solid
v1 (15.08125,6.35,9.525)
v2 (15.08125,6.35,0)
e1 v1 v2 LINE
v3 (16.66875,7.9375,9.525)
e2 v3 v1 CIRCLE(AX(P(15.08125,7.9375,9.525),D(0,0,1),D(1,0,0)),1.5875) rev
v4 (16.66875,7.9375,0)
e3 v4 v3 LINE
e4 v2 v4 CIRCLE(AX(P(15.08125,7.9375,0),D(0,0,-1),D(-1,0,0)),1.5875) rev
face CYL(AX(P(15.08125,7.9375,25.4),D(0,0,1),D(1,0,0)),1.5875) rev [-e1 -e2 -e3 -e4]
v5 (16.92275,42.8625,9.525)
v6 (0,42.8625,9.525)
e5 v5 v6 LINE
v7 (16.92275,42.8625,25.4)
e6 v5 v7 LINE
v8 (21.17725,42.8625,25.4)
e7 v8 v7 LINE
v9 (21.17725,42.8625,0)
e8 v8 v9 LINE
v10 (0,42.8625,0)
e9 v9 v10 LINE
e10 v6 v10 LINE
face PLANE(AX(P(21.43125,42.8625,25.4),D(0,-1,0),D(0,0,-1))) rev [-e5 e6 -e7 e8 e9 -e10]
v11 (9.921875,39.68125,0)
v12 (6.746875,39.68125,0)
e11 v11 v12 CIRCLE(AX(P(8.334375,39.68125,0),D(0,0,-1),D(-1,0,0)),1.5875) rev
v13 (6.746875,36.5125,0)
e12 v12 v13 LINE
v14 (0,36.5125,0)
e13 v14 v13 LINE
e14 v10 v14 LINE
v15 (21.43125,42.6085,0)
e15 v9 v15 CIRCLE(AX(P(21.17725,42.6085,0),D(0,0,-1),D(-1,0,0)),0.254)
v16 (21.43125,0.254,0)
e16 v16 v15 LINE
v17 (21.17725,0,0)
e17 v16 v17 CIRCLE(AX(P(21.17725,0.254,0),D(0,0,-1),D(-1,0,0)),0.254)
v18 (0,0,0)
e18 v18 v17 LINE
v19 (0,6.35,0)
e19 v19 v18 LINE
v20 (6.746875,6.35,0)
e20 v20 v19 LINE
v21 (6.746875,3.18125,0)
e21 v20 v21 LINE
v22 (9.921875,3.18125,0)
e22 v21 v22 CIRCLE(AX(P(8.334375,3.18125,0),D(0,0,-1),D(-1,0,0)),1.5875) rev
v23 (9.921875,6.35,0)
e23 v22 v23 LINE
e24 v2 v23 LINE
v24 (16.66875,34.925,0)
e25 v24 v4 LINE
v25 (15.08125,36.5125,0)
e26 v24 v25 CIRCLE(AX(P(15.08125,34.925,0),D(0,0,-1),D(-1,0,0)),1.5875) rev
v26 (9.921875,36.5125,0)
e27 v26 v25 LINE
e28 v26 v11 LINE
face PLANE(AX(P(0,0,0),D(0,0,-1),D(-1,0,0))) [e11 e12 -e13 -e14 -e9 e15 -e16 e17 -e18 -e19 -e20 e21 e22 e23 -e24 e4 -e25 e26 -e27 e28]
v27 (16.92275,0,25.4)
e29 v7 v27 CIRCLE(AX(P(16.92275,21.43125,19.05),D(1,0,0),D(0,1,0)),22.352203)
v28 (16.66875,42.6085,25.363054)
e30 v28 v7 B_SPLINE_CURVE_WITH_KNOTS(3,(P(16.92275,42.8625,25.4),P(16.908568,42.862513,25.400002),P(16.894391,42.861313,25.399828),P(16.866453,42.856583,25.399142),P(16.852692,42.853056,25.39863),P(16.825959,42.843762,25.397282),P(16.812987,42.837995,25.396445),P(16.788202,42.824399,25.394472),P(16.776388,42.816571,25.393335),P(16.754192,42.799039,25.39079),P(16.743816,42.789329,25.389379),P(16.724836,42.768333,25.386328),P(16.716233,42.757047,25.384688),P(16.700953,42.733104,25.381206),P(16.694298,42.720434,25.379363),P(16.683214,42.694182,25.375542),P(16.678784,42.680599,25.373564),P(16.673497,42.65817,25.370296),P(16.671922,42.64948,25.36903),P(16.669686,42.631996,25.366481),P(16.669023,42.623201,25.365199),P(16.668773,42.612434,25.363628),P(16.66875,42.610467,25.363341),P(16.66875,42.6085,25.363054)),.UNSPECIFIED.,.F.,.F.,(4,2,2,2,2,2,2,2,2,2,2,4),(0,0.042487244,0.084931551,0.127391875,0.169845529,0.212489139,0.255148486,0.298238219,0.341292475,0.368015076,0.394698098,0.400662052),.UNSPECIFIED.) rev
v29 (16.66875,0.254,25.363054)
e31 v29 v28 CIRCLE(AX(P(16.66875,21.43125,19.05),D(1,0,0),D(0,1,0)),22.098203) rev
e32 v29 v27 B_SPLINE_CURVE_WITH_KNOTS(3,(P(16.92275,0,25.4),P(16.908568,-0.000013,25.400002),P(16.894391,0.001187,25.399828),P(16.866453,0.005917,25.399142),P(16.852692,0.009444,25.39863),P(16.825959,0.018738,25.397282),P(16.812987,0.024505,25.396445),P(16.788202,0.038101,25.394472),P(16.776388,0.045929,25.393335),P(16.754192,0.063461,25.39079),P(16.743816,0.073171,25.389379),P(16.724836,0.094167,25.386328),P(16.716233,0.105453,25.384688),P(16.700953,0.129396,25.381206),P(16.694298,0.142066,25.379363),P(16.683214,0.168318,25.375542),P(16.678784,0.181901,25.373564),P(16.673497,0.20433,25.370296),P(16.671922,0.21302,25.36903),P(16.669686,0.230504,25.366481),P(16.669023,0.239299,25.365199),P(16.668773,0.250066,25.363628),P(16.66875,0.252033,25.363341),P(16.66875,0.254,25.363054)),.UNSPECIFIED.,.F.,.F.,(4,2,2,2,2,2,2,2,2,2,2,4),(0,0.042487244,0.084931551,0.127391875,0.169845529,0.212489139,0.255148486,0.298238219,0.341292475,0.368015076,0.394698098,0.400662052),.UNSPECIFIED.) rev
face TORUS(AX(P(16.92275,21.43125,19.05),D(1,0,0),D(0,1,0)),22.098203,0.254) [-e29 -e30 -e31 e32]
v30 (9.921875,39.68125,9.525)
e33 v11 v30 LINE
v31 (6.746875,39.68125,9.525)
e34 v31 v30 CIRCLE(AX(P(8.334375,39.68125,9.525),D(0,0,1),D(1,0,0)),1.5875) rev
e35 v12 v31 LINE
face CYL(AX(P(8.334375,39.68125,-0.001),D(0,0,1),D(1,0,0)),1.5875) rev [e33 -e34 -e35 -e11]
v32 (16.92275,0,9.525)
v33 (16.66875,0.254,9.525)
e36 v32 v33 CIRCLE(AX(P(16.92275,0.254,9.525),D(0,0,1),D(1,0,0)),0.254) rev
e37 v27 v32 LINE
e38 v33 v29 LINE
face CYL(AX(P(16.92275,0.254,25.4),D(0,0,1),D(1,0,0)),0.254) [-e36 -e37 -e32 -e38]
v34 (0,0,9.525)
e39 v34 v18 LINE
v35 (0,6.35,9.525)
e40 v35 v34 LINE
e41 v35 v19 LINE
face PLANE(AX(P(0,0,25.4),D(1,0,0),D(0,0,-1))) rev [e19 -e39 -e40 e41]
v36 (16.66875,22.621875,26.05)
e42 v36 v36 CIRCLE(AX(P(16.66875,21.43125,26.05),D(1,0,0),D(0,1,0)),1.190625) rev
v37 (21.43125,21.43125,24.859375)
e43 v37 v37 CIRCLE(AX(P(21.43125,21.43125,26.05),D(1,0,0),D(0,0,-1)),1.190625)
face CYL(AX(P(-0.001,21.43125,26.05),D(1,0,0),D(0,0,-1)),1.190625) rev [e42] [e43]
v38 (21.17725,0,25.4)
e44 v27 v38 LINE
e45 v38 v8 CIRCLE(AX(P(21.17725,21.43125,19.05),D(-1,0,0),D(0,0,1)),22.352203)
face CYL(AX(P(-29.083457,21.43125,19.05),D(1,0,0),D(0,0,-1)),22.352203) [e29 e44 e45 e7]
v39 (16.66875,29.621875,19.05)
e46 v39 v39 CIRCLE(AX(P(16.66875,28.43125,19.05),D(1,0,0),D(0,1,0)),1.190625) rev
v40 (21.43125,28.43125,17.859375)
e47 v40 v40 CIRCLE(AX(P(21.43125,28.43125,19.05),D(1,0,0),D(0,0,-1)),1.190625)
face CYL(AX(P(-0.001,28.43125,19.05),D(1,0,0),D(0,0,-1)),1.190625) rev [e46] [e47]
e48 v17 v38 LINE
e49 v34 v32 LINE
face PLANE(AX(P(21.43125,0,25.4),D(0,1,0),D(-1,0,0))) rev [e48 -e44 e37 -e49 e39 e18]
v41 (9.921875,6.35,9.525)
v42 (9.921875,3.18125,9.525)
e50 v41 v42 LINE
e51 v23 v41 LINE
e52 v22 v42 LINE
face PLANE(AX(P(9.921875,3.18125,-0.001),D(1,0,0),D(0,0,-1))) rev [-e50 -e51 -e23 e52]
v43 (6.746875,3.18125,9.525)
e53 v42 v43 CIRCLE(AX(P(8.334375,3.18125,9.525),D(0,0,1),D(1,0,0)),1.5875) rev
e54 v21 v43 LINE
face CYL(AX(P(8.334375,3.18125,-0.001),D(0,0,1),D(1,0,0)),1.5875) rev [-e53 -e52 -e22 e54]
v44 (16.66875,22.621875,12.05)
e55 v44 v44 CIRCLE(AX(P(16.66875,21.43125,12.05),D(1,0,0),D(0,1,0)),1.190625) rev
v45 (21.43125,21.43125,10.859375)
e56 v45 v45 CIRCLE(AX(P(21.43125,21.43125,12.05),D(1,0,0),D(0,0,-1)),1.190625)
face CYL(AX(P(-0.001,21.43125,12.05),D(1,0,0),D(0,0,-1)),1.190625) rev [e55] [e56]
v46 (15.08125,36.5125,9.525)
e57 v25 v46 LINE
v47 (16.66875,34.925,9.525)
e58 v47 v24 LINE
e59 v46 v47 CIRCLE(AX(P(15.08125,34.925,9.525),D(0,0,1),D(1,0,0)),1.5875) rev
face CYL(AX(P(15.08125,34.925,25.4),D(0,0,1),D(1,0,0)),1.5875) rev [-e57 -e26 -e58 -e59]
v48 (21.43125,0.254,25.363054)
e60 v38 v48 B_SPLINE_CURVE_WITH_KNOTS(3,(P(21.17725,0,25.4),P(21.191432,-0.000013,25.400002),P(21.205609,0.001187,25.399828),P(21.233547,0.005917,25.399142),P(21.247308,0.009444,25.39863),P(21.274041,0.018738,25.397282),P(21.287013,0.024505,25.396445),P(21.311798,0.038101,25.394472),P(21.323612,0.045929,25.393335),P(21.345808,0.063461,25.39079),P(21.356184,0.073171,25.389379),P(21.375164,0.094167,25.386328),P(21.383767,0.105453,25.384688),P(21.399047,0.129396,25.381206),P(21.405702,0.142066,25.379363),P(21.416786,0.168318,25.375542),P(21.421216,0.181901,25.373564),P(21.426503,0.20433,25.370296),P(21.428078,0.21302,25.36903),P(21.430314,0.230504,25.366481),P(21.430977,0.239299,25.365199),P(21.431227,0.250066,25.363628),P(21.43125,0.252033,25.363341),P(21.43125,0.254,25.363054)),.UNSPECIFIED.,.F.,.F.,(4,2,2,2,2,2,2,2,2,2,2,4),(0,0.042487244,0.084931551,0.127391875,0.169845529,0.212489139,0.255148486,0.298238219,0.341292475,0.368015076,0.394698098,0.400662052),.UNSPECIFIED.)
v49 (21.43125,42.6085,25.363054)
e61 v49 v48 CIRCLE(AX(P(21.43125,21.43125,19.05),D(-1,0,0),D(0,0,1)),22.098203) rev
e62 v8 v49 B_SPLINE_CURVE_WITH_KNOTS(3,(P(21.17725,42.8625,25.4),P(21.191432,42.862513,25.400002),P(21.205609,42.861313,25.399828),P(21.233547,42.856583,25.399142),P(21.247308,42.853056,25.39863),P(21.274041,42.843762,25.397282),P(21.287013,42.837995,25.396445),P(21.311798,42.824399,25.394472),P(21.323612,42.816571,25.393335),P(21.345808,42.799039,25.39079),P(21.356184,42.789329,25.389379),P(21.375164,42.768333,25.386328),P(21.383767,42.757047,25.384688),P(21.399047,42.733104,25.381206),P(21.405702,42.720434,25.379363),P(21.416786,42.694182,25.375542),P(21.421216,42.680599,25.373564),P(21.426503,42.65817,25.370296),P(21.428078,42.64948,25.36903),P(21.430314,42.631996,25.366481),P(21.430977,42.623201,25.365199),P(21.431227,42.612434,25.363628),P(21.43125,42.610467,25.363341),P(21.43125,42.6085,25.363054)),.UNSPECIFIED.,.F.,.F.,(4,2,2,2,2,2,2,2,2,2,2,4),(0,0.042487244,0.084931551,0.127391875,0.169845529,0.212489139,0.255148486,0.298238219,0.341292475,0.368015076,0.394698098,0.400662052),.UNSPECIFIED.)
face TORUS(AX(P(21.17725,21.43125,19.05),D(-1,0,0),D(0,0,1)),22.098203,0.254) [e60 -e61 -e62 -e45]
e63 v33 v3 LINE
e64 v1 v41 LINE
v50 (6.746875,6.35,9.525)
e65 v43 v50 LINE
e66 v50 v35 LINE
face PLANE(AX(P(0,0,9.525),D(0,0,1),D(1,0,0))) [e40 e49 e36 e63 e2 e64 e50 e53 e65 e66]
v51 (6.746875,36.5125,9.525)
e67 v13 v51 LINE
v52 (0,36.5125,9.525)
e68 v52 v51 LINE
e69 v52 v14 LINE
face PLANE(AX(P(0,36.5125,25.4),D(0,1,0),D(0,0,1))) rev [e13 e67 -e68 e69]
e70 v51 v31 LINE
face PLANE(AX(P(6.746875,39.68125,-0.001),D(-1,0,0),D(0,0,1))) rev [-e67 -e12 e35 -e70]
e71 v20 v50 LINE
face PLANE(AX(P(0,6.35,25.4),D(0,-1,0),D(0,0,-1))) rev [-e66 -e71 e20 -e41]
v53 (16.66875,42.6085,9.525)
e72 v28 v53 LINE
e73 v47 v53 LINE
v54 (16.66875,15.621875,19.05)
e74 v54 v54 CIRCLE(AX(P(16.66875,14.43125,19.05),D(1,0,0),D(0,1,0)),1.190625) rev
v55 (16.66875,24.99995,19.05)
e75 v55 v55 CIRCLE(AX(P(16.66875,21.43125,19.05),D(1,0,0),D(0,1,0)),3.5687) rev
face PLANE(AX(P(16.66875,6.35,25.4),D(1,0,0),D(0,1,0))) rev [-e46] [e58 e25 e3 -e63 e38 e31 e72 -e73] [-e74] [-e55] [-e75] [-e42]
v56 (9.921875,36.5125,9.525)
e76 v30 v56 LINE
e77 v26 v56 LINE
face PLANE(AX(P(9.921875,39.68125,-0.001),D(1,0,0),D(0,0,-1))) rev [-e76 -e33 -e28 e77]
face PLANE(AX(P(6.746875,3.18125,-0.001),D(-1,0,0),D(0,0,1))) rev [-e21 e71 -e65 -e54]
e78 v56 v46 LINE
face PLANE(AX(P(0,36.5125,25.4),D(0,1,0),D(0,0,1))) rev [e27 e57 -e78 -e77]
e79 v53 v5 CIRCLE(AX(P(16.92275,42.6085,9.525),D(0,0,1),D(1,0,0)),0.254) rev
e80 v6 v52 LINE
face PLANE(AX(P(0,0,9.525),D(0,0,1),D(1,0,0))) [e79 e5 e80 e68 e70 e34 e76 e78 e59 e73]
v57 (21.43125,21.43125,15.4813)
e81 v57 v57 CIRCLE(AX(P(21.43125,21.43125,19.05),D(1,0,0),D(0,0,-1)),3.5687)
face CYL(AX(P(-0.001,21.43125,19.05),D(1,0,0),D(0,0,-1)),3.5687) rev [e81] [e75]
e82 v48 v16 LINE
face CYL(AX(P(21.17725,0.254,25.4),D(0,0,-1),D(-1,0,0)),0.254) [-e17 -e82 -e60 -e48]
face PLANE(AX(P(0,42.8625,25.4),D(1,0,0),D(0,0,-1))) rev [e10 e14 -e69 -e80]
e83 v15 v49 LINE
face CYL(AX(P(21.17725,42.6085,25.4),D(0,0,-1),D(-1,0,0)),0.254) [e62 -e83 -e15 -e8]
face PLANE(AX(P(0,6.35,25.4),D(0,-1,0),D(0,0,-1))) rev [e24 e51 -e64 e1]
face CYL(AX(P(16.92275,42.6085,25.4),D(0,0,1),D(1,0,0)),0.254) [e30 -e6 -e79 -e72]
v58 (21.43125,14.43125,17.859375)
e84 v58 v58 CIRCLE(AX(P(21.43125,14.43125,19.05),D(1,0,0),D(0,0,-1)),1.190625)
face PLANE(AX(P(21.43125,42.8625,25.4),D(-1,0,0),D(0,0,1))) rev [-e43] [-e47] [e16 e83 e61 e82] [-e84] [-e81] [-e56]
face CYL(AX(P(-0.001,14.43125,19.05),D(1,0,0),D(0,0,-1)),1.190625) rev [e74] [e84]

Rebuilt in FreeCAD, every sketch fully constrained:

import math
import FreeCAD as App
import Part
import Sketcher
from FreeCAD import Vector
Q = App.Units.Quantity


def edges_at(feature, points):
    """Names of the edges that pass closest to the given points."""
    edges = feature.Shape.Edges
    near = lambda p: min(range(len(edges)), key=lambda i: edges[i].distToShape(Part.Vertex(*p))[0])
    return sorted({f"Edge{near(p) + 1}" for p in points})

doc = App.newDocument("Part")
body = doc.addObject("PartDesign::Body", "Body")

# Sketch on XY plane
sketch1 = body.newObject("Sketcher::SketchObject", "Sketch")
sketch1.AttachmentSupport = (doc.getObject("XY_Plane"), [""])
sketch1.MapMode = "FlatFace"
sketch1.addGeometry(Part.LineSegment(Vector(0, 6, 0), Vector(0, 0, 0)), False)
sketch1.addGeometry(Part.LineSegment(Vector(0, 0, 0), Vector(21, 0, 0)), False)
sketch1.addGeometry(Part.LineSegment(Vector(21, 0, 0), Vector(21, 43, 0)), False)
sketch1.addGeometry(Part.LineSegment(Vector(21, 43, 0), Vector(0, 43, 0)), False)
sketch1.addGeometry(Part.LineSegment(Vector(0, 43, 0), Vector(0, 37, 0)), False)
sketch1.addGeometry(Part.LineSegment(Vector(0, 37, 0), Vector(17, 37, 0)), False)
sketch1.addGeometry(Part.LineSegment(Vector(17, 37, 0), Vector(17, 6, 0)), False)
sketch1.addGeometry(Part.LineSegment(Vector(17, 6, 0), Vector(0, 6, 0)), False)
sketch1.addConstraint(Sketcher.Constraint("Coincident", 0, 2, 1, 1))
sketch1.addConstraint(Sketcher.Constraint("Coincident", 1, 2, 2, 1))
sketch1.addConstraint(Sketcher.Constraint("Coincident", 2, 2, 3, 1))
sketch1.addConstraint(Sketcher.Constraint("Coincident", 3, 2, 4, 1))
sketch1.addConstraint(Sketcher.Constraint("Coincident", 4, 2, 5, 1))
sketch1.addConstraint(Sketcher.Constraint("Coincident", 5, 2, 6, 1))
sketch1.addConstraint(Sketcher.Constraint("Coincident", 6, 2, 7, 1))
sketch1.addConstraint(Sketcher.Constraint("Coincident", 7, 2, 0, 1))
sketch1.addConstraint(Sketcher.Constraint("Vertical", 0))
sketch1.addConstraint(Sketcher.Constraint("Horizontal", 1))
sketch1.addConstraint(Sketcher.Constraint("Vertical", 2))
sketch1.addConstraint(Sketcher.Constraint("Horizontal", 3))
sketch1.addConstraint(Sketcher.Constraint("Vertical", 4))
sketch1.addConstraint(Sketcher.Constraint("Horizontal", 5))
sketch1.addConstraint(Sketcher.Constraint("Vertical", 6))
sketch1.addConstraint(Sketcher.Constraint("Horizontal", 7))
sketch1.addConstraint(Sketcher.Constraint("Coincident", 0, 2, -1, 1))
sketch1.addConstraint(Sketcher.Constraint("PointOnObject", 3, 2, -2))
sketch1.addConstraint(Sketcher.Constraint("Equal", 0, 4))
sketch1.addConstraint(Sketcher.Constraint("DistanceY", 0, 2, 0, 1, Q("0.25 in")))
sketch1.addConstraint(Sketcher.Constraint("DistanceX", 1, 1, 1, 2, Q("0.84375 in")))
sketch1.addConstraint(Sketcher.Constraint("DistanceX", 5, 1, 5, 2, Q("0.65625 in")))
sketch1.addConstraint(Sketcher.Constraint("DistanceY", 2, 1, 2, 2, Q("1.6875 in")))
pad1 = body.newObject("PartDesign::Pad", "Pad")
pad1.Profile = sketch1
pad1.Length = Q("1 in")

# Sketch on YZ plane
sketch2 = body.newObject("Sketcher::SketchObject", "Sketch001")
sketch2.AttachmentSupport = (doc.getObject("YZ_Plane"), [""])
sketch2.MapMode = "FlatFace"
sketch2.AttachmentOffset = App.Placement(Vector(0, 0, 0.84375 * 25.4), App.Rotation())
sketch2.addGeometry(Part.Circle(Vector(21.4, 19.1, 0), Vector(0, 0, 1), 3.6), False)
sketch2.addConstraint(Sketcher.Constraint("Diameter", 0, Q("0.281 in")))
sketch2.addConstraint(Sketcher.Constraint("DistanceY", -1, 1, 0, 3, Q("0.75 in")))
sketch2.addConstraint(Sketcher.Constraint("DistanceX", -1, 1, 0, 3, Q("0.84375 in")))
pocket1 = body.newObject("PartDesign::Pocket", "Pocket")
pocket1.Profile = sketch2
pocket1.Type = "UpToFirst"

# Sketch on XY plane
sketch3 = body.newObject("Sketcher::SketchObject", "Sketch002")
sketch3.AttachmentSupport = (doc.getObject("XY_Plane"), [""])
sketch3.MapMode = "FlatFace"
sketch3.AttachmentOffset = App.Placement(Vector(0, 0, 1 * 25.4), App.Rotation())
sketch3.addGeometry(Part.LineSegment(Vector(9.9, 3.2, 0), Vector(9.9, 6.3, 0)), False)
sketch3.addGeometry(Part.LineSegment(Vector(9.9, 6.3, 0), Vector(6.7, 6.3, 0)), False)
sketch3.addGeometry(Part.LineSegment(Vector(6.7, 6.3, 0), Vector(6.7, 3.2, 0)), False)
sketch3.addGeometry(Part.ArcOfCircle(Part.Circle(Vector(8.3, 3.2, 0), Vector(0, 0, 1), 1.6), math.radians(180), math.radians(360)), False)
sketch3.addConstraint(Sketcher.Constraint("Coincident", 0, 2, 1, 1))
sketch3.addConstraint(Sketcher.Constraint("Coincident", 1, 2, 2, 1))
sketch3.addConstraint(Sketcher.Constraint("Tangent", 2, 2, 3, 1))
sketch3.addConstraint(Sketcher.Constraint("Tangent", 3, 2, 0, 1))
sketch3.addConstraint(Sketcher.Constraint("Vertical", 0))
sketch3.addConstraint(Sketcher.Constraint("Horizontal", 1))
sketch3.addConstraint(Sketcher.Constraint("Vertical", 2))
sketch3.addConstraint(Sketcher.Constraint("Radius", 3, Q("0.0625 in")))
sketch3.addConstraint(Sketcher.Constraint("DistanceY", -1, 1, 0, 2, Q("0.25 in")))
sketch3.addConstraint(Sketcher.Constraint("DistanceX", -1, 1, 3, 3, Q("0.328125 in")))
sketch3.addConstraint(Sketcher.Constraint("DistanceY", 0, 1, 0, 2, 3.16875))
pocket2 = body.newObject("PartDesign::Pocket", "Pocket001")
pocket2.Profile = sketch3
pocket2.Type = "UpToFirst"

# Sketch on XY plane
sketch4 = body.newObject("Sketcher::SketchObject", "Sketch003")
sketch4.AttachmentSupport = (doc.getObject("XY_Plane"), [""])
sketch4.MapMode = "FlatFace"
sketch4.AttachmentOffset = App.Placement(Vector(0, 0, 1 * 25.4), App.Rotation())
sketch4.addGeometry(Part.LineSegment(Vector(6.7, 36.5, 0), Vector(9.9, 36.5, 0)), False)
sketch4.addGeometry(Part.LineSegment(Vector(9.9, 36.5, 0), Vector(9.9, 39.7, 0)), False)
sketch4.addGeometry(Part.ArcOfCircle(Part.Circle(Vector(8.3, 39.7, 0), Vector(0, 0, 1), 1.6), math.radians(0), math.radians(180)), False)
sketch4.addGeometry(Part.LineSegment(Vector(6.7, 39.7, 0), Vector(6.7, 36.5, 0)), False)
sketch4.addConstraint(Sketcher.Constraint("Coincident", 0, 2, 1, 1))
sketch4.addConstraint(Sketcher.Constraint("Tangent", 1, 2, 2, 1))
sketch4.addConstraint(Sketcher.Constraint("Tangent", 2, 2, 3, 1))
sketch4.addConstraint(Sketcher.Constraint("Coincident", 3, 2, 0, 1))
sketch4.addConstraint(Sketcher.Constraint("Horizontal", 0))
sketch4.addConstraint(Sketcher.Constraint("Vertical", 1))
sketch4.addConstraint(Sketcher.Constraint("Vertical", 3))
sketch4.addConstraint(Sketcher.Constraint("Radius", 2, Q("0.0625 in")))
sketch4.addConstraint(Sketcher.Constraint("DistanceX", -1, 1, 2, 3, Q("0.328125 in")))
sketch4.addConstraint(Sketcher.Constraint("DistanceY", -1, 1, 0, 2, Q("1.4375 in")))
sketch4.addConstraint(Sketcher.Constraint("DistanceY", 1, 1, 1, 2, 3.16875))
pocket3 = body.newObject("PartDesign::Pocket", "Pocket002")
pocket3.Profile = sketch4
pocket3.Type = "UpToFirst"

# Sketch on XY plane
sketch5 = body.newObject("Sketcher::SketchObject", "Sketch004")
sketch5.AttachmentSupport = (doc.getObject("XY_Plane"), [""])
sketch5.MapMode = "FlatFace"
sketch5.AttachmentOffset = App.Placement(Vector(0, 0, 1 * 25.4), App.Rotation())
sketch5.addGeometry(Part.LineSegment(Vector(0, 43, 0), Vector(0, 0, 0)), False)
sketch5.addGeometry(Part.LineSegment(Vector(0, 0, 0), Vector(17, 0, 0)), False)
sketch5.addGeometry(Part.LineSegment(Vector(17, 0, 0), Vector(17, 43, 0)), False)
sketch5.addGeometry(Part.LineSegment(Vector(17, 43, 0), Vector(0, 43, 0)), False)
sketch5.addConstraint(Sketcher.Constraint("Coincident", 0, 2, 1, 1))
sketch5.addConstraint(Sketcher.Constraint("Coincident", 1, 2, 2, 1))
sketch5.addConstraint(Sketcher.Constraint("Coincident", 2, 2, 3, 1))
sketch5.addConstraint(Sketcher.Constraint("Coincident", 3, 2, 0, 1))
sketch5.addConstraint(Sketcher.Constraint("Vertical", 0))
sketch5.addConstraint(Sketcher.Constraint("Horizontal", 1))
sketch5.addConstraint(Sketcher.Constraint("Vertical", 2))
sketch5.addConstraint(Sketcher.Constraint("Horizontal", 3))
sketch5.addConstraint(Sketcher.Constraint("Coincident", 0, 2, -1, 1))
sketch5.addConstraint(Sketcher.Constraint("DistanceX", 1, 1, 1, 2, Q("0.65625 in")))
sketch5.addConstraint(Sketcher.Constraint("DistanceY", 0, 2, 0, 1, Q("1.6875 in")))
pocket4 = body.newObject("PartDesign::Pocket", "Pocket003")
pocket4.Profile = sketch5
pocket4.Length = Q("0.625 in")

# Sketch on YZ plane
sketch6 = body.newObject("Sketcher::SketchObject", "Sketch005")
sketch6.AttachmentSupport = (doc.getObject("YZ_Plane"), [""])
sketch6.MapMode = "FlatFace"
sketch6.AttachmentOffset = App.Placement(Vector(0, 0, 0.84375 * 25.4), App.Rotation())
sketch6.addGeometry(Part.ArcOfCircle(Part.Circle(Vector(21, 19, 0), Vector(0, 0, 1), 22), math.radians(17), math.radians(163)), False)
sketch6.addGeometry(Part.LineSegment(Vector(0, 25, 0), Vector(43, 25, 0)), False)
sketch6.addConstraint(Sketcher.Constraint("Coincident", 0, 1, 1, 2))
sketch6.addConstraint(Sketcher.Constraint("Coincident", 1, 1, 0, 2))
sketch6.addConstraint(Sketcher.Constraint("Horizontal", 1))
sketch6.addConstraint(Sketcher.Constraint("PointOnObject", 1, 1, -2))
sketch6.addConstraint(Sketcher.Constraint("DistanceY", -1, 1, 0, 1, Q("1 in")))
sketch6.addConstraint(Sketcher.Constraint("DistanceX", 1, 1, 1, 2, Q("1.6875 in")))
sketch6.addConstraint(Sketcher.Constraint("DistanceY", -1, 1, 0, 3, Q("0.75 in")))
pad2 = body.newObject("PartDesign::Pad", "Pad001")
pad2.Profile = sketch6
pad2.Length = Q("0.1875 in")
pad2.Reversed = True

# Sketch on YZ plane
sketch7 = body.newObject("Sketcher::SketchObject", "Sketch006")
sketch7.AttachmentSupport = (doc.getObject("YZ_Plane"), [""])
sketch7.MapMode = "FlatFace"
sketch7.AttachmentOffset = App.Placement(Vector(0, 0, 0.84375 * 25.4), App.Rotation())
sketch7.addGeometry(Part.Circle(Vector(21.4, 12.1, 0), Vector(0, 0, 1), 1.2), False)
sketch7.addConstraint(Sketcher.Constraint("Diameter", 0, Q("0.09375 in")))
sketch7.addConstraint(Sketcher.Constraint("DistanceX", -1, 1, 0, 3, Q("0.84375 in")))
sketch7.addConstraint(Sketcher.Constraint("DistanceY", -1, 1, 0, 3, 12.05))
pocket5 = body.newObject("PartDesign::Pocket", "Pocket004")
pocket5.Profile = sketch7
pocket5.Type = "UpToFirst"

# Sketch on YZ plane
sketch8 = body.newObject("Sketcher::SketchObject", "Sketch007")
sketch8.AttachmentSupport = (doc.getObject("YZ_Plane"), [""])
sketch8.MapMode = "FlatFace"
sketch8.AttachmentOffset = App.Placement(Vector(0, 0, 0.84375 * 25.4), App.Rotation())
sketch8.addGeometry(Part.Circle(Vector(14.4, 19.1, 0), Vector(0, 0, 1), 1.2), False)
sketch8.addConstraint(Sketcher.Constraint("Diameter", 0, Q("0.09375 in")))
sketch8.addConstraint(Sketcher.Constraint("DistanceY", -1, 1, 0, 3, Q("0.75 in")))
sketch8.addConstraint(Sketcher.Constraint("DistanceX", -1, 1, 0, 3, 14.43125))
pocket6 = body.newObject("PartDesign::Pocket", "Pocket005")
pocket6.Profile = sketch8
pocket6.Type = "UpToFirst"

# Sketch on YZ plane
sketch9 = body.newObject("Sketcher::SketchObject", "Sketch008")
sketch9.AttachmentSupport = (doc.getObject("YZ_Plane"), [""])
sketch9.MapMode = "FlatFace"
sketch9.AttachmentOffset = App.Placement(Vector(0, 0, 0.84375 * 25.4), App.Rotation())
sketch9.addGeometry(Part.Circle(Vector(21.4, 26.1, 0), Vector(0, 0, 1), 1.2), False)
sketch9.addConstraint(Sketcher.Constraint("Diameter", 0, Q("0.09375 in")))
sketch9.addConstraint(Sketcher.Constraint("DistanceX", -1, 1, 0, 3, Q("0.84375 in")))
sketch9.addConstraint(Sketcher.Constraint("DistanceY", -1, 1, 0, 3, 26.05))
pocket7 = body.newObject("PartDesign::Pocket", "Pocket006")
pocket7.Profile = sketch9
pocket7.Type = "UpToFirst"

# Sketch on YZ plane
sketch10 = body.newObject("Sketcher::SketchObject", "Sketch009")
sketch10.AttachmentSupport = (doc.getObject("YZ_Plane"), [""])
sketch10.MapMode = "FlatFace"
sketch10.AttachmentOffset = App.Placement(Vector(0, 0, 0.84375 * 25.4), App.Rotation())
sketch10.addGeometry(Part.Circle(Vector(28.4, 19.1, 0), Vector(0, 0, 1), 1.2), False)
sketch10.addConstraint(Sketcher.Constraint("Diameter", 0, Q("0.09375 in")))
sketch10.addConstraint(Sketcher.Constraint("DistanceY", -1, 1, 0, 3, Q("0.75 in")))
sketch10.addConstraint(Sketcher.Constraint("DistanceX", -1, 1, 0, 3, 28.43125))
pocket8 = body.newObject("PartDesign::Pocket", "Pocket007")
pocket8.Profile = sketch10
pocket8.Type = "UpToFirst"
doc.recompute()

fillet = body.newObject("PartDesign::Fillet", "Fillet")
fillet.Base = (pocket8, edges_at(pocket8, [
    (21.431, 21.431, 41.402),
    (16.669, 21.431, 41.402),
    (21.431, 42.862, 12.7),
    (21.431, 0, 12.7),
    (16.669, 42.862, 17.462),
    (16.669, 0, 17.462),
]))
fillet.Radius = Q("0.01 in")
doc.recompute()

fillet2 = body.newObject("PartDesign::Fillet", "Fillet001")
fillet2.Base = (fillet, edges_at(fillet, [(16.669, 6.35, 4.763), (16.669, 36.513, 4.763)]))
fillet2.Radius = Q("0.0625 in")

doc.recompute()
